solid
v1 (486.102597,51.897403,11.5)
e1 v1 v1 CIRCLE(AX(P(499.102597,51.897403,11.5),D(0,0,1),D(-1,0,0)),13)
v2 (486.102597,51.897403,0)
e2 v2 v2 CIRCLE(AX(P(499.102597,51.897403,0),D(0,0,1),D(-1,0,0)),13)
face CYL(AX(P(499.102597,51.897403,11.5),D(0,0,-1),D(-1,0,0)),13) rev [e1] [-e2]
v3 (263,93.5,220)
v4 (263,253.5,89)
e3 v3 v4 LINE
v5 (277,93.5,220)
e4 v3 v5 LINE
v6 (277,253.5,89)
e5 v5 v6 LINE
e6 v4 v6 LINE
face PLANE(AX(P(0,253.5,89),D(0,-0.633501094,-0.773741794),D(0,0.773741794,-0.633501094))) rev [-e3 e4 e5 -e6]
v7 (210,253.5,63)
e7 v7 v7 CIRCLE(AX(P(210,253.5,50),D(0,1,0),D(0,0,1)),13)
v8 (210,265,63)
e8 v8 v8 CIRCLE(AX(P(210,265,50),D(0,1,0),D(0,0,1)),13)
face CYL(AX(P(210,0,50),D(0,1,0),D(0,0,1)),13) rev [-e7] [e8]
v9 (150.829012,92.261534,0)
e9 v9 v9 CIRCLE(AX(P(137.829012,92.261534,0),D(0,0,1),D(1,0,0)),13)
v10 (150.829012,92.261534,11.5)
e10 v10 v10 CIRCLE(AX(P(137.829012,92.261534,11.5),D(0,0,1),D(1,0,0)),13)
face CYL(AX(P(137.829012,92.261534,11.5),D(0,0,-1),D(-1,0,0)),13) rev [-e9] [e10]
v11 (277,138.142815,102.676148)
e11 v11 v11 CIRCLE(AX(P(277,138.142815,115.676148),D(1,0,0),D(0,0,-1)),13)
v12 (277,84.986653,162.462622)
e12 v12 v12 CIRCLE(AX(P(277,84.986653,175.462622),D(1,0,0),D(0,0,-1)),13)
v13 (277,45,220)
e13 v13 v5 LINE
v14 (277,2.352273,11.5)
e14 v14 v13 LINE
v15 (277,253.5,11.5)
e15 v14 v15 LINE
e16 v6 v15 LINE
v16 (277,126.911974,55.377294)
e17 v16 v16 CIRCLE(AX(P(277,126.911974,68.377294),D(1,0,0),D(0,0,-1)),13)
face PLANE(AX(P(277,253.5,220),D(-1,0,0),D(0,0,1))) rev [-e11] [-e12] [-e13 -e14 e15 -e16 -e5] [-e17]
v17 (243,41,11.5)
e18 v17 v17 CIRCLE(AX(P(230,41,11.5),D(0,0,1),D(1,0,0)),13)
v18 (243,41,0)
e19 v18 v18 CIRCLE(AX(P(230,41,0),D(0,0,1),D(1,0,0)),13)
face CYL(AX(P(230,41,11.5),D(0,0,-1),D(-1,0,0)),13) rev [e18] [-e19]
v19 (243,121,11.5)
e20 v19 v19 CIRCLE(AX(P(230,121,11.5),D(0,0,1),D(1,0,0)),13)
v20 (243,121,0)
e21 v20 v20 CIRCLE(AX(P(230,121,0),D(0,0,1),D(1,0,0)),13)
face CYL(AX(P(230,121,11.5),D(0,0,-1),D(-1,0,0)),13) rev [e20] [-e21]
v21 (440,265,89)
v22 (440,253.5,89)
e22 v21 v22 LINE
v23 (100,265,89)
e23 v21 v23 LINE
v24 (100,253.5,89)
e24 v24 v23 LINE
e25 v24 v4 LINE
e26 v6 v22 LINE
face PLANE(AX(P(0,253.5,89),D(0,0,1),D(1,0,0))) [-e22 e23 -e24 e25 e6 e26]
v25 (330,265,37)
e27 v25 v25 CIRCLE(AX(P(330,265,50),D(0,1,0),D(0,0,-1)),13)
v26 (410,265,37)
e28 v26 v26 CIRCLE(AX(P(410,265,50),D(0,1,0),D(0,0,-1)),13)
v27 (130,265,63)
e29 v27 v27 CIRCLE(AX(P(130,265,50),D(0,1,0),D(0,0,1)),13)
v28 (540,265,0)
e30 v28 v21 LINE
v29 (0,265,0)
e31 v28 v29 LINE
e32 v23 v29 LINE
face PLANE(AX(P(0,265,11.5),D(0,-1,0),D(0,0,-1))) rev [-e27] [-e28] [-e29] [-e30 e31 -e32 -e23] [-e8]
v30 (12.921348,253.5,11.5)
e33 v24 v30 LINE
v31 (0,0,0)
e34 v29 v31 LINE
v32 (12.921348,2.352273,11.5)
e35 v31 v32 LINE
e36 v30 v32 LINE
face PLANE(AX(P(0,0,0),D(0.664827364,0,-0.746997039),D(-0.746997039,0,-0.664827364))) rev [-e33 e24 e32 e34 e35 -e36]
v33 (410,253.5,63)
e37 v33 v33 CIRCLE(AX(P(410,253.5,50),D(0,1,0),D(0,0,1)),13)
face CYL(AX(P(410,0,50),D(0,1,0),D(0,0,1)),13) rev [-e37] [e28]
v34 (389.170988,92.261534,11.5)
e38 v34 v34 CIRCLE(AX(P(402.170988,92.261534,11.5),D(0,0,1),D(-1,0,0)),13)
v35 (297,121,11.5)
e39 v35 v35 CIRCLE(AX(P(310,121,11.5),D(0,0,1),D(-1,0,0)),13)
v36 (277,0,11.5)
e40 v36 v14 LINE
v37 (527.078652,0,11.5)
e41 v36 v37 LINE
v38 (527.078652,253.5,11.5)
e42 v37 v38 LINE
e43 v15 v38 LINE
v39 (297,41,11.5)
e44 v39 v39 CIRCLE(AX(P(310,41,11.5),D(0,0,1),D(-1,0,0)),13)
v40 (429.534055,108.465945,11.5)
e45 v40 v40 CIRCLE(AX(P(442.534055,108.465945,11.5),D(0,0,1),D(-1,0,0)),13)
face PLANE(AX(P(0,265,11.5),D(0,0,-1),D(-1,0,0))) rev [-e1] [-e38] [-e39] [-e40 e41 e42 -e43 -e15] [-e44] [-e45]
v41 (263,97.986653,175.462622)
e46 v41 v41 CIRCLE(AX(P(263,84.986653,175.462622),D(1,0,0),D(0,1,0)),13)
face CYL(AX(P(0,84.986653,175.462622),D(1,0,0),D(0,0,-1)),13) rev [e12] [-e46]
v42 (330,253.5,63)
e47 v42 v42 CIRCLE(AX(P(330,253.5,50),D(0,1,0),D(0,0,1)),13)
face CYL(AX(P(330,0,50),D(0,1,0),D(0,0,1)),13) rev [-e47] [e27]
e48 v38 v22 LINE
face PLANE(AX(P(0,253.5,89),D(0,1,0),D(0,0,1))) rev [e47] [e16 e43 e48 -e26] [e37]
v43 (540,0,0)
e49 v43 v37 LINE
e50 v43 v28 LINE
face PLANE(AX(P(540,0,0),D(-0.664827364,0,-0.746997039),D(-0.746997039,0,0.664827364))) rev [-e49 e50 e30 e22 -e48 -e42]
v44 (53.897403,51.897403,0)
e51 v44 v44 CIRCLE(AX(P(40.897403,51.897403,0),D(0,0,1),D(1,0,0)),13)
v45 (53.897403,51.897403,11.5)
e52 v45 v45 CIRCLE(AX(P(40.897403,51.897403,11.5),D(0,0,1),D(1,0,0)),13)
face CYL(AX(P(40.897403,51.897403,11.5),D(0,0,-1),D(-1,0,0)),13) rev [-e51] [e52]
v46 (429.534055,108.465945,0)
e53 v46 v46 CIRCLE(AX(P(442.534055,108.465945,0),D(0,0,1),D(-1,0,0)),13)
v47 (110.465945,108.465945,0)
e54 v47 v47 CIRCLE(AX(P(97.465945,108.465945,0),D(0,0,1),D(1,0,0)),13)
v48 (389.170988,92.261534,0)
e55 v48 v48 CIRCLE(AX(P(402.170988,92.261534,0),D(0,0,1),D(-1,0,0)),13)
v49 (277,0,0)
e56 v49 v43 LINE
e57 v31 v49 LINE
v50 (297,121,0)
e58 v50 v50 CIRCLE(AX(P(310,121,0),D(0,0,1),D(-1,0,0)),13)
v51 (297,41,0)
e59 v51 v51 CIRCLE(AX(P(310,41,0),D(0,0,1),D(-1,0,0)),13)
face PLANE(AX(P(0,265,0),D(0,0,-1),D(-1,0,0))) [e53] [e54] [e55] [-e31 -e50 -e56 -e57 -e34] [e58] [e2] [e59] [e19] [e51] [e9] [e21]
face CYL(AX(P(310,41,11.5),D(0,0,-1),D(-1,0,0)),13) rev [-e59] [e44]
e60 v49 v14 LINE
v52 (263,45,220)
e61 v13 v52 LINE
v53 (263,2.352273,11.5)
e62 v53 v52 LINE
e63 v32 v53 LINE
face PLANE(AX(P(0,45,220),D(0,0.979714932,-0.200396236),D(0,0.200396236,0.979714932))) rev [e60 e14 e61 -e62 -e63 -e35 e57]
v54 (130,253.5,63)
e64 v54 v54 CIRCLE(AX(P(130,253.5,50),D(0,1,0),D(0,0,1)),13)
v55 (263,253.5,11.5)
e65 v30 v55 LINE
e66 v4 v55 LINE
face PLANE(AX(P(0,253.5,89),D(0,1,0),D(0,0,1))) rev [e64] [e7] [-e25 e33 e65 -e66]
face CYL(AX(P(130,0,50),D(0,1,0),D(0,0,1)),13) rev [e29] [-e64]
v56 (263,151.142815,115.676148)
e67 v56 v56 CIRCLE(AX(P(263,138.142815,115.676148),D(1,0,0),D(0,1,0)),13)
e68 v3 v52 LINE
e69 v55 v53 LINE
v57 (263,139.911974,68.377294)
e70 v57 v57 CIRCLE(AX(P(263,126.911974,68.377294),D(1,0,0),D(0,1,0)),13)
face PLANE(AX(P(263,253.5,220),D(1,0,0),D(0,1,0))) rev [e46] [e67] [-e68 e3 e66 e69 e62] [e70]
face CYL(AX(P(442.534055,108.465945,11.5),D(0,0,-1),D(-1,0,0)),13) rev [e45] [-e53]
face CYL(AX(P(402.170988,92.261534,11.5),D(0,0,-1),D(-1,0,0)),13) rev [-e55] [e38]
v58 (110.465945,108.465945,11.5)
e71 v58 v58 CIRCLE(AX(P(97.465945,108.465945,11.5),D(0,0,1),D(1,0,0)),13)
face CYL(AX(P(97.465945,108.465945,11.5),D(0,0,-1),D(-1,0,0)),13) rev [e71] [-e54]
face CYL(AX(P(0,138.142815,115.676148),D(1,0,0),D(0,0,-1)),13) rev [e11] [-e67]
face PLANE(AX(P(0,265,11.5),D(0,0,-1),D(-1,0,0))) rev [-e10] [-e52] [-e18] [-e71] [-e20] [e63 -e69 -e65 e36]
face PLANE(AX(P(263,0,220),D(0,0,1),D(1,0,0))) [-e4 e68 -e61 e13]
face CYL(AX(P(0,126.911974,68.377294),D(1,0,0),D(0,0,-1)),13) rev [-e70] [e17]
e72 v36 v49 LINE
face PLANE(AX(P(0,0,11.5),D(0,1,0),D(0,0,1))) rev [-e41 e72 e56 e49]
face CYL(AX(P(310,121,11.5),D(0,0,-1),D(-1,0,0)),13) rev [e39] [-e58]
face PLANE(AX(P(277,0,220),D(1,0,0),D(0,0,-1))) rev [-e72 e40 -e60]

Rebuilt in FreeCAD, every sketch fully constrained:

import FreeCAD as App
import Part
import Sketcher

V = App.Vector
Q = App.Units.Quantity


def add_polygon(sketch, points):
    """Adds a closed chain of lines whose ends are joined by coincident constraints."""
    first, n = sketch.GeometryCount, len(points)
    for a, b in zip(points, points[1:] + points[:1]):
        sketch.addGeometry(Part.LineSegment(App.Vector(*a, 0), App.Vector(*b, 0)), False)
    for i in range(n):
        sketch.addConstraint(Sketcher.Constraint("Coincident", first + i, 2, first + (i + 1) % n, 1))

doc = App.newDocument("Part")
params = doc.addObject("Spreadsheet::Sheet", "Params")
for row, (alias, value) in enumerate([
    ("sketch1_diameter", "26 mm"),
    ("sketch1_width", "540 mm"),
    ("sketch1_height", "265 mm"),
    ("pad1_length", "11.5 mm"),
    ("sketch2_width", "540 mm"),
    ("sketch2_height", "11.5 mm"),
    ("pad2_length", "77.5 mm"),
    ("sketch3_width", "100 mm"),
    ("sketch3_height", "89 mm"),
    ("sketch4_diameter", "26 mm"),
    ("sketch5_width", "14 mm"),
    ("sketch5_height", "253.5 mm"),
    ("pad3_length", "208.5 mm"),
    ("sketch6_diameter", "26 mm"),
    ("sketch6_width", "160 mm"),
    ("sketch6_width2", "45 mm"),
    ("sketch6_height", "131 mm"),
    ("sketch6_height2", "220 mm"),
], start=1):
    params.set(f"A{row}", alias)
    params.set(f"B{row}", "=" + value)
    params.setAlias(f"B{row}", alias)

body = doc.addObject("PartDesign::Body", "Body")

sketch1 = doc.addObject("Sketcher::SketchObject", "Sketch")
body.addObject(sketch1)
sketch1.AttachmentSupport = (doc.XY_Plane, [""])
sketch1.MapMode = "FlatFace"
add_polygon(sketch1, [(0, 265), (0, 0), (540, 0), (540, 265)])
sketch1.addGeometry(Part.Circle(V(41, 52, 0), V(0, 0, 1), 13), False)
sketch1.addGeometry(Part.Circle(V(230, 41, 0), V(0, 0, 1), 13), False)
sketch1.addGeometry(Part.Circle(V(310, 41, 0), V(0, 0, 1), 13), False)
sketch1.addGeometry(Part.Circle(V(499, 52, 0), V(0, 0, 1), 13), False)
sketch1.addGeometry(Part.Circle(V(138, 92, 0), V(0, 0, 1), 13), False)
sketch1.addGeometry(Part.Circle(V(97, 108, 0), V(0, 0, 1), 13), False)
sketch1.addGeometry(Part.Circle(V(230, 121, 0), V(0, 0, 1), 13), False)
sketch1.addGeometry(Part.Circle(V(402, 92, 0), V(0, 0, 1), 13), False)
sketch1.addGeometry(Part.Circle(V(310, 121, 0), V(0, 0, 1), 13), False)
sketch1.addGeometry(Part.Circle(V(443, 108, 0), V(0, 0, 1), 13), False)
sketch1.addConstraint(Sketcher.Constraint("Vertical", 0))
sketch1.addConstraint(Sketcher.Constraint("Horizontal", 1))
sketch1.addConstraint(Sketcher.Constraint("Vertical", 2))
sketch1.addConstraint(Sketcher.Constraint("Horizontal", 3))
sketch1.addConstraint(Sketcher.Constraint("Coincident", 0, 2, -1, 1))
sketch1.addConstraint(Sketcher.Constraint("Equal", 4, 5))
sketch1.addConstraint(Sketcher.Constraint("Equal", 5, 6))
sketch1.addConstraint(Sketcher.Constraint("Equal", 6, 7))
sketch1.addConstraint(Sketcher.Constraint("Equal", 7, 8))
sketch1.addConstraint(Sketcher.Constraint("Equal", 8, 9))
sketch1.addConstraint(Sketcher.Constraint("Equal", 9, 10))
sketch1.addConstraint(Sketcher.Constraint("Equal", 10, 11))
sketch1.addConstraint(Sketcher.Constraint("Equal", 11, 12))
sketch1.addConstraint(Sketcher.Constraint("Equal", 12, 13))
sketch1.addConstraint(Sketcher.Constraint("Horizontal", 5, 3, 6, 3))
sketch1.addConstraint(Sketcher.Constraint("Horizontal", 4, 3, 7, 3))
sketch1.addConstraint(Sketcher.Constraint("Horizontal", 8, 3, 11, 3))
sketch1.addConstraint(Sketcher.Constraint("Horizontal", 10, 3, 12, 3))
sketch1.addConstraint(Sketcher.Constraint("Horizontal", 9, 3, 13, 3))
sketch1.addConstraint(Sketcher.Constraint("Vertical", 5, 3, 10, 3))
sketch1.addConstraint(Sketcher.Constraint("Vertical", 6, 3, 12, 3))
sketch1.addConstraint(Sketcher.Constraint("Diameter", 4, Q("26 mm")))
sketch1.addConstraint(Sketcher.Constraint("DistanceX", 1, 1, 1, 2, Q("540 mm")))
sketch1.addConstraint(Sketcher.Constraint("DistanceY", 0, 2, 0, 1, Q("265 mm")))
sketch1.addConstraint(Sketcher.Constraint("DistanceX", -1, 1, 5, 3, Q("230 mm")))
sketch1.addConstraint(Sketcher.Constraint("DistanceY", -1, 1, 5, 3, Q("41 mm")))
sketch1.addConstraint(Sketcher.Constraint("DistanceX", -1, 1, 6, 3, Q("310 mm")))
sketch1.addConstraint(Sketcher.Constraint("DistanceY", -1, 1, 10, 3, Q("121 mm")))
sketch1.addConstraint(Sketcher.Constraint("DistanceX", 4, 3, 8, 3, Q("96.931609 mm")))
sketch1.addConstraint(Sketcher.Constraint("DistanceY", 4, 3, 8, 3, Q("40.364131 mm")))
sketch1.addConstraint(Sketcher.Constraint("DistanceY", 8, 3, 9, 3, Q("16.204411 mm")))
sketch1.addConstraint(Sketcher.Constraint("DistanceX", 9, 3, 7, 3, Q("401.636652 mm")))
sketch1.addConstraint(Sketcher.Constraint("DistanceX", 11, 3, 7, 3, Q("96.931609 mm")))
sketch1.addConstraint(Sketcher.Constraint("DistanceX", -1, 1, 4, 3, Q("40.897403 mm")))
sketch1.addConstraint(Sketcher.Constraint("DistanceY", -1, 1, 4, 3, Q("51.897403 mm")))
sketch1.addConstraint(Sketcher.Constraint("DistanceX", -1, 1, 7, 3, Q("499.102597 mm")))
sketch1.addConstraint(Sketcher.Constraint("DistanceX", -1, 1, 13, 3, Q("442.534055 mm")))
sketch1.setExpression("Constraints[25]", "Params.sketch1_diameter")
sketch1.setExpression("Constraints[26]", "Params.sketch1_width")
sketch1.setExpression("Constraints[27]", "Params.sketch1_height")
pad1 = doc.addObject("PartDesign::Pad", "Pad")
body.addObject(pad1)
pad1.Profile = sketch1
pad1.setExpression("Length", "Params.pad1_length")

sketch2 = doc.addObject("Sketcher::SketchObject", "Sketch001")
body.addObject(sketch2)
sketch2.AttachmentSupport = (doc.XY_Plane, [""])
sketch2.MapMode = "FlatFace"
sketch2.AttachmentOffset = App.Placement(V(0, 0, 11.5), App.Rotation())
add_polygon(sketch2, [(0, 265), (0, 254), (540, 254), (540, 265)])
sketch2.addConstraint(Sketcher.Constraint("Vertical", 0))
sketch2.addConstraint(Sketcher.Constraint("Horizontal", 1))
sketch2.addConstraint(Sketcher.Constraint("Vertical", 2))
sketch2.addConstraint(Sketcher.Constraint("Horizontal", 3))
sketch2.addConstraint(Sketcher.Constraint("PointOnObject", 0, 2, -2))
sketch2.addConstraint(Sketcher.Constraint("DistanceX", 1, 1, 1, 2, Q("540 mm")))
sketch2.addConstraint(Sketcher.Constraint("DistanceY", 0, 2, 0, 1, Q("11.5 mm")))
sketch2.addConstraint(Sketcher.Constraint("DistanceY", -1, 1, 2, 2, Q("265 mm")))
sketch2.setExpression("Constraints[9]", "Params.sketch2_width")
sketch2.setExpression("Constraints[10]", "Params.sketch2_height")
pad2 = doc.addObject("PartDesign::Pad", "Pad001")
body.addObject(pad2)
pad2.Profile = sketch2
pad2.setExpression("Length", "Params.pad2_length")

sketch3 = doc.addObject("Sketcher::SketchObject", "Sketch002")
body.addObject(sketch3)
sketch3.AttachmentSupport = (doc.XZ_Plane, [""])
sketch3.MapMode = "FlatFace"
sketch3.AttachmentOffset = App.Placement(V(0, 0, -265), App.Rotation())
add_polygon(sketch3, [(100, 89), (0, 0), (0, 89)])
add_polygon(sketch3, [(540, 0), (440, 89), (540, 89)])
sketch3.addConstraint(Sketcher.Constraint("Vertical", 1))
sketch3.addConstraint(Sketcher.Constraint("Horizontal", 2))
sketch3.addConstraint(Sketcher.Constraint("Horizontal", 4))
sketch3.addConstraint(Sketcher.Constraint("Vertical", 5))
sketch3.addConstraint(Sketcher.Constraint("Coincident", 0, 2, -1, 1))
sketch3.addConstraint(Sketcher.Constraint("PointOnObject", 5, 2, -1))
sketch3.addConstraint(Sketcher.Constraint("Horizontal", 2, 2, 3, 2))
sketch3.addConstraint(Sketcher.Constraint("Equal", 2, 4))
sketch3.addConstraint(Sketcher.Constraint("DistanceX", 2, 1, 2, 2, Q("100 mm")))
sketch3.addConstraint(Sketcher.Constraint("DistanceY", 1, 1, 1, 2, Q("89 mm")))
sketch3.addConstraint(Sketcher.Constraint("DistanceX", -1, 1, 3, 2, Q("440 mm")))
sketch3.setExpression("Constraints[14]", "Params.sketch3_width")
sketch3.setExpression("Constraints[15]", "Params.sketch3_height")
pocket1 = doc.addObject("PartDesign::Pocket", "Pocket")
body.addObject(pocket1)
pocket1.Profile = sketch3
pocket1.Type = "ThroughAll"
pocket1.Reversed = True

sketch4 = doc.addObject("Sketcher::SketchObject", "Sketch003")
body.addObject(sketch4)
sketch4.AttachmentSupport = (doc.XZ_Plane, [""])
sketch4.MapMode = "FlatFace"
sketch4.AttachmentOffset = App.Placement(V(0, 0, -265), App.Rotation())
sketch4.addGeometry(Part.Circle(V(210, 50, 0), V(0, 0, 1), 13), False)
sketch4.addGeometry(Part.Circle(V(130, 50, 0), V(0, 0, 1), 13), False)
sketch4.addGeometry(Part.Circle(V(410, 50, 0), V(0, 0, 1), 13), False)
sketch4.addGeometry(Part.Circle(V(330, 50, 0), V(0, 0, 1), 13), False)
sketch4.addConstraint(Sketcher.Constraint("Equal", 0, 1))
sketch4.addConstraint(Sketcher.Constraint("Equal", 1, 2))
sketch4.addConstraint(Sketcher.Constraint("Equal", 2, 3))
sketch4.addConstraint(Sketcher.Constraint("Horizontal", 0, 3, 1, 3))
sketch4.addConstraint(Sketcher.Constraint("Horizontal", 1, 3, 2, 3))
sketch4.addConstraint(Sketcher.Constraint("Horizontal", 2, 3, 3, 3))
sketch4.addConstraint(Sketcher.Constraint("Diameter", 0, Q("26 mm")))
sketch4.addConstraint(Sketcher.Constraint("DistanceX", -1, 1, 0, 3, Q("210 mm")))
sketch4.addConstraint(Sketcher.Constraint("DistanceY", -1, 1, 0, 3, Q("50 mm")))
sketch4.addConstraint(Sketcher.Constraint("DistanceX", -1, 1, 1, 3, Q("130 mm")))
sketch4.addConstraint(Sketcher.Constraint("DistanceX", -1, 1, 2, 3, Q("410 mm")))
sketch4.addConstraint(Sketcher.Constraint("DistanceX", -1, 1, 3, 3, Q("330 mm")))
sketch4.setExpression("Constraints[6]", "Params.sketch4_diameter")
pocket2 = doc.addObject("PartDesign::Pocket", "Pocket001")
body.addObject(pocket2)
pocket2.Profile = sketch4
pocket2.Type = "ThroughAll"
pocket2.Reversed = True

sketch5 = doc.addObject("Sketcher::SketchObject", "Sketch004")
body.addObject(sketch5)
sketch5.AttachmentSupport = (doc.XY_Plane, [""])
sketch5.MapMode = "FlatFace"
sketch5.AttachmentOffset = App.Placement(V(0, 0, 11.5), App.Rotation())
add_polygon(sketch5, [(263, 254), (263, 0), (277, 0), (277, 254)])
sketch5.addConstraint(Sketcher.Constraint("Vertical", 0))
sketch5.addConstraint(Sketcher.Constraint("Horizontal", 1))
sketch5.addConstraint(Sketcher.Constraint("Vertical", 2))
sketch5.addConstraint(Sketcher.Constraint("Horizontal", 3))
sketch5.addConstraint(Sketcher.Constraint("PointOnObject", 0, 2, -1))
sketch5.addConstraint(Sketcher.Constraint("DistanceX", 1, 1, 1, 2, Q("14 mm")))
sketch5.addConstraint(Sketcher.Constraint("DistanceY", 0, 2, 0, 1, Q("253.5 mm")))
sketch5.addConstraint(Sketcher.Constraint("DistanceX", -1, 1, 0, 2, Q("263 mm")))
sketch5.setExpression("Constraints[9]", "Params.sketch5_width")
sketch5.setExpression("Constraints[10]", "Params.sketch5_height")
pad3 = doc.addObject("PartDesign::Pad", "Pad002")
body.addObject(pad3)
pad3.Profile = sketch5
pad3.setExpression("Length", "Params.pad3_length")

sketch6 = doc.addObject("Sketcher::SketchObject", "Sketch005")
body.addObject(sketch6)
sketch6.AttachmentSupport = (doc.YZ_Plane, [""])
sketch6.MapMode = "FlatFace"
sketch6.AttachmentOffset = App.Placement(V(0, 0, 277), App.Rotation())
sketch6.addGeometry(Part.Circle(V(138, 116, 0), V(0, 0, 1), 13), False)
sketch6.addGeometry(Part.Circle(V(85, 175, 0), V(0, 0, 1), 13), False)
sketch6.addGeometry(Part.Circle(V(127, 68, 0), V(0, 0, 1), 13), False)
add_polygon(sketch6, [(94, 220), (254, 89), (254, 220)])
add_polygon(sketch6, [(0, 0), (45, 220), (0, 220)])
sketch6.addConstraint(Sketcher.Constraint("Vertical", 4))
sketch6.addConstraint(Sketcher.Constraint("Horizontal", 5))
sketch6.addConstraint(Sketcher.Constraint("Horizontal", 7))
sketch6.addConstraint(Sketcher.Constraint("Vertical", 8))
sketch6.addConstraint(Sketcher.Constraint("Coincident", 8, 2, -1, 1))
sketch6.addConstraint(Sketcher.Constraint("Equal", 0, 1))
sketch6.addConstraint(Sketcher.Constraint("Equal", 1, 2))
sketch6.addConstraint(Sketcher.Constraint("Horizontal", 5, 2, 6, 2))
sketch6.addConstraint(Sketcher.Constraint("Diameter", 0, Q("26 mm")))
sketch6.addConstraint(Sketcher.Constraint("DistanceX", 5, 2, 5, 1, Q("160 mm")))
sketch6.addConstraint(Sketcher.Constraint("DistanceX", 7, 2, 7, 1, Q("45 mm")))
sketch6.addConstraint(Sketcher.Constraint("DistanceY", 4, 1, 4, 2, Q("131 mm")))
sketch6.addConstraint(Sketcher.Constraint("DistanceY", 8, 2, 8, 1, Q("220 mm")))
sketch6.addConstraint(Sketcher.Constraint("DistanceX", -1, 1, 3, 2, Q("253.5 mm")))
sketch6.addConstraint(Sketcher.Constraint("DistanceY", -1, 1, 0, 3, Q("115.676148 mm")))
sketch6.addConstraint(Sketcher.Constraint("DistanceY", -1, 1, 1, 3, Q("175.462622 mm")))
sketch6.addConstraint(Sketcher.Constraint("DistanceX", 2, 3, 0, 3, Q("11.23084 mm")))
sketch6.addConstraint(Sketcher.Constraint("DistanceX", 1, 3, 2, 3, Q("41.925322 mm")))
sketch6.addConstraint(Sketcher.Constraint("DistanceX", -1, 1, 0, 3, Q("138.142815 mm")))
sketch6.addConstraint(Sketcher.Constraint("DistanceY", -1, 1, 2, 3, Q("68.377294 mm")))
sketch6.setExpression("Constraints[14]", "Params.sketch6_diameter")
sketch6.setExpression("Constraints[15]", "Params.sketch6_width")
sketch6.setExpression("Constraints[16]", "Params.sketch6_width2")
sketch6.setExpression("Constraints[17]", "Params.sketch6_height")
sketch6.setExpression("Constraints[18]", "Params.sketch6_height2")
pocket3 = doc.addObject("PartDesign::Pocket", "Pocket002")
body.addObject(pocket3)
pocket3.Profile = sketch6
pocket3.Type = "ThroughAll"

doc.recompute()
